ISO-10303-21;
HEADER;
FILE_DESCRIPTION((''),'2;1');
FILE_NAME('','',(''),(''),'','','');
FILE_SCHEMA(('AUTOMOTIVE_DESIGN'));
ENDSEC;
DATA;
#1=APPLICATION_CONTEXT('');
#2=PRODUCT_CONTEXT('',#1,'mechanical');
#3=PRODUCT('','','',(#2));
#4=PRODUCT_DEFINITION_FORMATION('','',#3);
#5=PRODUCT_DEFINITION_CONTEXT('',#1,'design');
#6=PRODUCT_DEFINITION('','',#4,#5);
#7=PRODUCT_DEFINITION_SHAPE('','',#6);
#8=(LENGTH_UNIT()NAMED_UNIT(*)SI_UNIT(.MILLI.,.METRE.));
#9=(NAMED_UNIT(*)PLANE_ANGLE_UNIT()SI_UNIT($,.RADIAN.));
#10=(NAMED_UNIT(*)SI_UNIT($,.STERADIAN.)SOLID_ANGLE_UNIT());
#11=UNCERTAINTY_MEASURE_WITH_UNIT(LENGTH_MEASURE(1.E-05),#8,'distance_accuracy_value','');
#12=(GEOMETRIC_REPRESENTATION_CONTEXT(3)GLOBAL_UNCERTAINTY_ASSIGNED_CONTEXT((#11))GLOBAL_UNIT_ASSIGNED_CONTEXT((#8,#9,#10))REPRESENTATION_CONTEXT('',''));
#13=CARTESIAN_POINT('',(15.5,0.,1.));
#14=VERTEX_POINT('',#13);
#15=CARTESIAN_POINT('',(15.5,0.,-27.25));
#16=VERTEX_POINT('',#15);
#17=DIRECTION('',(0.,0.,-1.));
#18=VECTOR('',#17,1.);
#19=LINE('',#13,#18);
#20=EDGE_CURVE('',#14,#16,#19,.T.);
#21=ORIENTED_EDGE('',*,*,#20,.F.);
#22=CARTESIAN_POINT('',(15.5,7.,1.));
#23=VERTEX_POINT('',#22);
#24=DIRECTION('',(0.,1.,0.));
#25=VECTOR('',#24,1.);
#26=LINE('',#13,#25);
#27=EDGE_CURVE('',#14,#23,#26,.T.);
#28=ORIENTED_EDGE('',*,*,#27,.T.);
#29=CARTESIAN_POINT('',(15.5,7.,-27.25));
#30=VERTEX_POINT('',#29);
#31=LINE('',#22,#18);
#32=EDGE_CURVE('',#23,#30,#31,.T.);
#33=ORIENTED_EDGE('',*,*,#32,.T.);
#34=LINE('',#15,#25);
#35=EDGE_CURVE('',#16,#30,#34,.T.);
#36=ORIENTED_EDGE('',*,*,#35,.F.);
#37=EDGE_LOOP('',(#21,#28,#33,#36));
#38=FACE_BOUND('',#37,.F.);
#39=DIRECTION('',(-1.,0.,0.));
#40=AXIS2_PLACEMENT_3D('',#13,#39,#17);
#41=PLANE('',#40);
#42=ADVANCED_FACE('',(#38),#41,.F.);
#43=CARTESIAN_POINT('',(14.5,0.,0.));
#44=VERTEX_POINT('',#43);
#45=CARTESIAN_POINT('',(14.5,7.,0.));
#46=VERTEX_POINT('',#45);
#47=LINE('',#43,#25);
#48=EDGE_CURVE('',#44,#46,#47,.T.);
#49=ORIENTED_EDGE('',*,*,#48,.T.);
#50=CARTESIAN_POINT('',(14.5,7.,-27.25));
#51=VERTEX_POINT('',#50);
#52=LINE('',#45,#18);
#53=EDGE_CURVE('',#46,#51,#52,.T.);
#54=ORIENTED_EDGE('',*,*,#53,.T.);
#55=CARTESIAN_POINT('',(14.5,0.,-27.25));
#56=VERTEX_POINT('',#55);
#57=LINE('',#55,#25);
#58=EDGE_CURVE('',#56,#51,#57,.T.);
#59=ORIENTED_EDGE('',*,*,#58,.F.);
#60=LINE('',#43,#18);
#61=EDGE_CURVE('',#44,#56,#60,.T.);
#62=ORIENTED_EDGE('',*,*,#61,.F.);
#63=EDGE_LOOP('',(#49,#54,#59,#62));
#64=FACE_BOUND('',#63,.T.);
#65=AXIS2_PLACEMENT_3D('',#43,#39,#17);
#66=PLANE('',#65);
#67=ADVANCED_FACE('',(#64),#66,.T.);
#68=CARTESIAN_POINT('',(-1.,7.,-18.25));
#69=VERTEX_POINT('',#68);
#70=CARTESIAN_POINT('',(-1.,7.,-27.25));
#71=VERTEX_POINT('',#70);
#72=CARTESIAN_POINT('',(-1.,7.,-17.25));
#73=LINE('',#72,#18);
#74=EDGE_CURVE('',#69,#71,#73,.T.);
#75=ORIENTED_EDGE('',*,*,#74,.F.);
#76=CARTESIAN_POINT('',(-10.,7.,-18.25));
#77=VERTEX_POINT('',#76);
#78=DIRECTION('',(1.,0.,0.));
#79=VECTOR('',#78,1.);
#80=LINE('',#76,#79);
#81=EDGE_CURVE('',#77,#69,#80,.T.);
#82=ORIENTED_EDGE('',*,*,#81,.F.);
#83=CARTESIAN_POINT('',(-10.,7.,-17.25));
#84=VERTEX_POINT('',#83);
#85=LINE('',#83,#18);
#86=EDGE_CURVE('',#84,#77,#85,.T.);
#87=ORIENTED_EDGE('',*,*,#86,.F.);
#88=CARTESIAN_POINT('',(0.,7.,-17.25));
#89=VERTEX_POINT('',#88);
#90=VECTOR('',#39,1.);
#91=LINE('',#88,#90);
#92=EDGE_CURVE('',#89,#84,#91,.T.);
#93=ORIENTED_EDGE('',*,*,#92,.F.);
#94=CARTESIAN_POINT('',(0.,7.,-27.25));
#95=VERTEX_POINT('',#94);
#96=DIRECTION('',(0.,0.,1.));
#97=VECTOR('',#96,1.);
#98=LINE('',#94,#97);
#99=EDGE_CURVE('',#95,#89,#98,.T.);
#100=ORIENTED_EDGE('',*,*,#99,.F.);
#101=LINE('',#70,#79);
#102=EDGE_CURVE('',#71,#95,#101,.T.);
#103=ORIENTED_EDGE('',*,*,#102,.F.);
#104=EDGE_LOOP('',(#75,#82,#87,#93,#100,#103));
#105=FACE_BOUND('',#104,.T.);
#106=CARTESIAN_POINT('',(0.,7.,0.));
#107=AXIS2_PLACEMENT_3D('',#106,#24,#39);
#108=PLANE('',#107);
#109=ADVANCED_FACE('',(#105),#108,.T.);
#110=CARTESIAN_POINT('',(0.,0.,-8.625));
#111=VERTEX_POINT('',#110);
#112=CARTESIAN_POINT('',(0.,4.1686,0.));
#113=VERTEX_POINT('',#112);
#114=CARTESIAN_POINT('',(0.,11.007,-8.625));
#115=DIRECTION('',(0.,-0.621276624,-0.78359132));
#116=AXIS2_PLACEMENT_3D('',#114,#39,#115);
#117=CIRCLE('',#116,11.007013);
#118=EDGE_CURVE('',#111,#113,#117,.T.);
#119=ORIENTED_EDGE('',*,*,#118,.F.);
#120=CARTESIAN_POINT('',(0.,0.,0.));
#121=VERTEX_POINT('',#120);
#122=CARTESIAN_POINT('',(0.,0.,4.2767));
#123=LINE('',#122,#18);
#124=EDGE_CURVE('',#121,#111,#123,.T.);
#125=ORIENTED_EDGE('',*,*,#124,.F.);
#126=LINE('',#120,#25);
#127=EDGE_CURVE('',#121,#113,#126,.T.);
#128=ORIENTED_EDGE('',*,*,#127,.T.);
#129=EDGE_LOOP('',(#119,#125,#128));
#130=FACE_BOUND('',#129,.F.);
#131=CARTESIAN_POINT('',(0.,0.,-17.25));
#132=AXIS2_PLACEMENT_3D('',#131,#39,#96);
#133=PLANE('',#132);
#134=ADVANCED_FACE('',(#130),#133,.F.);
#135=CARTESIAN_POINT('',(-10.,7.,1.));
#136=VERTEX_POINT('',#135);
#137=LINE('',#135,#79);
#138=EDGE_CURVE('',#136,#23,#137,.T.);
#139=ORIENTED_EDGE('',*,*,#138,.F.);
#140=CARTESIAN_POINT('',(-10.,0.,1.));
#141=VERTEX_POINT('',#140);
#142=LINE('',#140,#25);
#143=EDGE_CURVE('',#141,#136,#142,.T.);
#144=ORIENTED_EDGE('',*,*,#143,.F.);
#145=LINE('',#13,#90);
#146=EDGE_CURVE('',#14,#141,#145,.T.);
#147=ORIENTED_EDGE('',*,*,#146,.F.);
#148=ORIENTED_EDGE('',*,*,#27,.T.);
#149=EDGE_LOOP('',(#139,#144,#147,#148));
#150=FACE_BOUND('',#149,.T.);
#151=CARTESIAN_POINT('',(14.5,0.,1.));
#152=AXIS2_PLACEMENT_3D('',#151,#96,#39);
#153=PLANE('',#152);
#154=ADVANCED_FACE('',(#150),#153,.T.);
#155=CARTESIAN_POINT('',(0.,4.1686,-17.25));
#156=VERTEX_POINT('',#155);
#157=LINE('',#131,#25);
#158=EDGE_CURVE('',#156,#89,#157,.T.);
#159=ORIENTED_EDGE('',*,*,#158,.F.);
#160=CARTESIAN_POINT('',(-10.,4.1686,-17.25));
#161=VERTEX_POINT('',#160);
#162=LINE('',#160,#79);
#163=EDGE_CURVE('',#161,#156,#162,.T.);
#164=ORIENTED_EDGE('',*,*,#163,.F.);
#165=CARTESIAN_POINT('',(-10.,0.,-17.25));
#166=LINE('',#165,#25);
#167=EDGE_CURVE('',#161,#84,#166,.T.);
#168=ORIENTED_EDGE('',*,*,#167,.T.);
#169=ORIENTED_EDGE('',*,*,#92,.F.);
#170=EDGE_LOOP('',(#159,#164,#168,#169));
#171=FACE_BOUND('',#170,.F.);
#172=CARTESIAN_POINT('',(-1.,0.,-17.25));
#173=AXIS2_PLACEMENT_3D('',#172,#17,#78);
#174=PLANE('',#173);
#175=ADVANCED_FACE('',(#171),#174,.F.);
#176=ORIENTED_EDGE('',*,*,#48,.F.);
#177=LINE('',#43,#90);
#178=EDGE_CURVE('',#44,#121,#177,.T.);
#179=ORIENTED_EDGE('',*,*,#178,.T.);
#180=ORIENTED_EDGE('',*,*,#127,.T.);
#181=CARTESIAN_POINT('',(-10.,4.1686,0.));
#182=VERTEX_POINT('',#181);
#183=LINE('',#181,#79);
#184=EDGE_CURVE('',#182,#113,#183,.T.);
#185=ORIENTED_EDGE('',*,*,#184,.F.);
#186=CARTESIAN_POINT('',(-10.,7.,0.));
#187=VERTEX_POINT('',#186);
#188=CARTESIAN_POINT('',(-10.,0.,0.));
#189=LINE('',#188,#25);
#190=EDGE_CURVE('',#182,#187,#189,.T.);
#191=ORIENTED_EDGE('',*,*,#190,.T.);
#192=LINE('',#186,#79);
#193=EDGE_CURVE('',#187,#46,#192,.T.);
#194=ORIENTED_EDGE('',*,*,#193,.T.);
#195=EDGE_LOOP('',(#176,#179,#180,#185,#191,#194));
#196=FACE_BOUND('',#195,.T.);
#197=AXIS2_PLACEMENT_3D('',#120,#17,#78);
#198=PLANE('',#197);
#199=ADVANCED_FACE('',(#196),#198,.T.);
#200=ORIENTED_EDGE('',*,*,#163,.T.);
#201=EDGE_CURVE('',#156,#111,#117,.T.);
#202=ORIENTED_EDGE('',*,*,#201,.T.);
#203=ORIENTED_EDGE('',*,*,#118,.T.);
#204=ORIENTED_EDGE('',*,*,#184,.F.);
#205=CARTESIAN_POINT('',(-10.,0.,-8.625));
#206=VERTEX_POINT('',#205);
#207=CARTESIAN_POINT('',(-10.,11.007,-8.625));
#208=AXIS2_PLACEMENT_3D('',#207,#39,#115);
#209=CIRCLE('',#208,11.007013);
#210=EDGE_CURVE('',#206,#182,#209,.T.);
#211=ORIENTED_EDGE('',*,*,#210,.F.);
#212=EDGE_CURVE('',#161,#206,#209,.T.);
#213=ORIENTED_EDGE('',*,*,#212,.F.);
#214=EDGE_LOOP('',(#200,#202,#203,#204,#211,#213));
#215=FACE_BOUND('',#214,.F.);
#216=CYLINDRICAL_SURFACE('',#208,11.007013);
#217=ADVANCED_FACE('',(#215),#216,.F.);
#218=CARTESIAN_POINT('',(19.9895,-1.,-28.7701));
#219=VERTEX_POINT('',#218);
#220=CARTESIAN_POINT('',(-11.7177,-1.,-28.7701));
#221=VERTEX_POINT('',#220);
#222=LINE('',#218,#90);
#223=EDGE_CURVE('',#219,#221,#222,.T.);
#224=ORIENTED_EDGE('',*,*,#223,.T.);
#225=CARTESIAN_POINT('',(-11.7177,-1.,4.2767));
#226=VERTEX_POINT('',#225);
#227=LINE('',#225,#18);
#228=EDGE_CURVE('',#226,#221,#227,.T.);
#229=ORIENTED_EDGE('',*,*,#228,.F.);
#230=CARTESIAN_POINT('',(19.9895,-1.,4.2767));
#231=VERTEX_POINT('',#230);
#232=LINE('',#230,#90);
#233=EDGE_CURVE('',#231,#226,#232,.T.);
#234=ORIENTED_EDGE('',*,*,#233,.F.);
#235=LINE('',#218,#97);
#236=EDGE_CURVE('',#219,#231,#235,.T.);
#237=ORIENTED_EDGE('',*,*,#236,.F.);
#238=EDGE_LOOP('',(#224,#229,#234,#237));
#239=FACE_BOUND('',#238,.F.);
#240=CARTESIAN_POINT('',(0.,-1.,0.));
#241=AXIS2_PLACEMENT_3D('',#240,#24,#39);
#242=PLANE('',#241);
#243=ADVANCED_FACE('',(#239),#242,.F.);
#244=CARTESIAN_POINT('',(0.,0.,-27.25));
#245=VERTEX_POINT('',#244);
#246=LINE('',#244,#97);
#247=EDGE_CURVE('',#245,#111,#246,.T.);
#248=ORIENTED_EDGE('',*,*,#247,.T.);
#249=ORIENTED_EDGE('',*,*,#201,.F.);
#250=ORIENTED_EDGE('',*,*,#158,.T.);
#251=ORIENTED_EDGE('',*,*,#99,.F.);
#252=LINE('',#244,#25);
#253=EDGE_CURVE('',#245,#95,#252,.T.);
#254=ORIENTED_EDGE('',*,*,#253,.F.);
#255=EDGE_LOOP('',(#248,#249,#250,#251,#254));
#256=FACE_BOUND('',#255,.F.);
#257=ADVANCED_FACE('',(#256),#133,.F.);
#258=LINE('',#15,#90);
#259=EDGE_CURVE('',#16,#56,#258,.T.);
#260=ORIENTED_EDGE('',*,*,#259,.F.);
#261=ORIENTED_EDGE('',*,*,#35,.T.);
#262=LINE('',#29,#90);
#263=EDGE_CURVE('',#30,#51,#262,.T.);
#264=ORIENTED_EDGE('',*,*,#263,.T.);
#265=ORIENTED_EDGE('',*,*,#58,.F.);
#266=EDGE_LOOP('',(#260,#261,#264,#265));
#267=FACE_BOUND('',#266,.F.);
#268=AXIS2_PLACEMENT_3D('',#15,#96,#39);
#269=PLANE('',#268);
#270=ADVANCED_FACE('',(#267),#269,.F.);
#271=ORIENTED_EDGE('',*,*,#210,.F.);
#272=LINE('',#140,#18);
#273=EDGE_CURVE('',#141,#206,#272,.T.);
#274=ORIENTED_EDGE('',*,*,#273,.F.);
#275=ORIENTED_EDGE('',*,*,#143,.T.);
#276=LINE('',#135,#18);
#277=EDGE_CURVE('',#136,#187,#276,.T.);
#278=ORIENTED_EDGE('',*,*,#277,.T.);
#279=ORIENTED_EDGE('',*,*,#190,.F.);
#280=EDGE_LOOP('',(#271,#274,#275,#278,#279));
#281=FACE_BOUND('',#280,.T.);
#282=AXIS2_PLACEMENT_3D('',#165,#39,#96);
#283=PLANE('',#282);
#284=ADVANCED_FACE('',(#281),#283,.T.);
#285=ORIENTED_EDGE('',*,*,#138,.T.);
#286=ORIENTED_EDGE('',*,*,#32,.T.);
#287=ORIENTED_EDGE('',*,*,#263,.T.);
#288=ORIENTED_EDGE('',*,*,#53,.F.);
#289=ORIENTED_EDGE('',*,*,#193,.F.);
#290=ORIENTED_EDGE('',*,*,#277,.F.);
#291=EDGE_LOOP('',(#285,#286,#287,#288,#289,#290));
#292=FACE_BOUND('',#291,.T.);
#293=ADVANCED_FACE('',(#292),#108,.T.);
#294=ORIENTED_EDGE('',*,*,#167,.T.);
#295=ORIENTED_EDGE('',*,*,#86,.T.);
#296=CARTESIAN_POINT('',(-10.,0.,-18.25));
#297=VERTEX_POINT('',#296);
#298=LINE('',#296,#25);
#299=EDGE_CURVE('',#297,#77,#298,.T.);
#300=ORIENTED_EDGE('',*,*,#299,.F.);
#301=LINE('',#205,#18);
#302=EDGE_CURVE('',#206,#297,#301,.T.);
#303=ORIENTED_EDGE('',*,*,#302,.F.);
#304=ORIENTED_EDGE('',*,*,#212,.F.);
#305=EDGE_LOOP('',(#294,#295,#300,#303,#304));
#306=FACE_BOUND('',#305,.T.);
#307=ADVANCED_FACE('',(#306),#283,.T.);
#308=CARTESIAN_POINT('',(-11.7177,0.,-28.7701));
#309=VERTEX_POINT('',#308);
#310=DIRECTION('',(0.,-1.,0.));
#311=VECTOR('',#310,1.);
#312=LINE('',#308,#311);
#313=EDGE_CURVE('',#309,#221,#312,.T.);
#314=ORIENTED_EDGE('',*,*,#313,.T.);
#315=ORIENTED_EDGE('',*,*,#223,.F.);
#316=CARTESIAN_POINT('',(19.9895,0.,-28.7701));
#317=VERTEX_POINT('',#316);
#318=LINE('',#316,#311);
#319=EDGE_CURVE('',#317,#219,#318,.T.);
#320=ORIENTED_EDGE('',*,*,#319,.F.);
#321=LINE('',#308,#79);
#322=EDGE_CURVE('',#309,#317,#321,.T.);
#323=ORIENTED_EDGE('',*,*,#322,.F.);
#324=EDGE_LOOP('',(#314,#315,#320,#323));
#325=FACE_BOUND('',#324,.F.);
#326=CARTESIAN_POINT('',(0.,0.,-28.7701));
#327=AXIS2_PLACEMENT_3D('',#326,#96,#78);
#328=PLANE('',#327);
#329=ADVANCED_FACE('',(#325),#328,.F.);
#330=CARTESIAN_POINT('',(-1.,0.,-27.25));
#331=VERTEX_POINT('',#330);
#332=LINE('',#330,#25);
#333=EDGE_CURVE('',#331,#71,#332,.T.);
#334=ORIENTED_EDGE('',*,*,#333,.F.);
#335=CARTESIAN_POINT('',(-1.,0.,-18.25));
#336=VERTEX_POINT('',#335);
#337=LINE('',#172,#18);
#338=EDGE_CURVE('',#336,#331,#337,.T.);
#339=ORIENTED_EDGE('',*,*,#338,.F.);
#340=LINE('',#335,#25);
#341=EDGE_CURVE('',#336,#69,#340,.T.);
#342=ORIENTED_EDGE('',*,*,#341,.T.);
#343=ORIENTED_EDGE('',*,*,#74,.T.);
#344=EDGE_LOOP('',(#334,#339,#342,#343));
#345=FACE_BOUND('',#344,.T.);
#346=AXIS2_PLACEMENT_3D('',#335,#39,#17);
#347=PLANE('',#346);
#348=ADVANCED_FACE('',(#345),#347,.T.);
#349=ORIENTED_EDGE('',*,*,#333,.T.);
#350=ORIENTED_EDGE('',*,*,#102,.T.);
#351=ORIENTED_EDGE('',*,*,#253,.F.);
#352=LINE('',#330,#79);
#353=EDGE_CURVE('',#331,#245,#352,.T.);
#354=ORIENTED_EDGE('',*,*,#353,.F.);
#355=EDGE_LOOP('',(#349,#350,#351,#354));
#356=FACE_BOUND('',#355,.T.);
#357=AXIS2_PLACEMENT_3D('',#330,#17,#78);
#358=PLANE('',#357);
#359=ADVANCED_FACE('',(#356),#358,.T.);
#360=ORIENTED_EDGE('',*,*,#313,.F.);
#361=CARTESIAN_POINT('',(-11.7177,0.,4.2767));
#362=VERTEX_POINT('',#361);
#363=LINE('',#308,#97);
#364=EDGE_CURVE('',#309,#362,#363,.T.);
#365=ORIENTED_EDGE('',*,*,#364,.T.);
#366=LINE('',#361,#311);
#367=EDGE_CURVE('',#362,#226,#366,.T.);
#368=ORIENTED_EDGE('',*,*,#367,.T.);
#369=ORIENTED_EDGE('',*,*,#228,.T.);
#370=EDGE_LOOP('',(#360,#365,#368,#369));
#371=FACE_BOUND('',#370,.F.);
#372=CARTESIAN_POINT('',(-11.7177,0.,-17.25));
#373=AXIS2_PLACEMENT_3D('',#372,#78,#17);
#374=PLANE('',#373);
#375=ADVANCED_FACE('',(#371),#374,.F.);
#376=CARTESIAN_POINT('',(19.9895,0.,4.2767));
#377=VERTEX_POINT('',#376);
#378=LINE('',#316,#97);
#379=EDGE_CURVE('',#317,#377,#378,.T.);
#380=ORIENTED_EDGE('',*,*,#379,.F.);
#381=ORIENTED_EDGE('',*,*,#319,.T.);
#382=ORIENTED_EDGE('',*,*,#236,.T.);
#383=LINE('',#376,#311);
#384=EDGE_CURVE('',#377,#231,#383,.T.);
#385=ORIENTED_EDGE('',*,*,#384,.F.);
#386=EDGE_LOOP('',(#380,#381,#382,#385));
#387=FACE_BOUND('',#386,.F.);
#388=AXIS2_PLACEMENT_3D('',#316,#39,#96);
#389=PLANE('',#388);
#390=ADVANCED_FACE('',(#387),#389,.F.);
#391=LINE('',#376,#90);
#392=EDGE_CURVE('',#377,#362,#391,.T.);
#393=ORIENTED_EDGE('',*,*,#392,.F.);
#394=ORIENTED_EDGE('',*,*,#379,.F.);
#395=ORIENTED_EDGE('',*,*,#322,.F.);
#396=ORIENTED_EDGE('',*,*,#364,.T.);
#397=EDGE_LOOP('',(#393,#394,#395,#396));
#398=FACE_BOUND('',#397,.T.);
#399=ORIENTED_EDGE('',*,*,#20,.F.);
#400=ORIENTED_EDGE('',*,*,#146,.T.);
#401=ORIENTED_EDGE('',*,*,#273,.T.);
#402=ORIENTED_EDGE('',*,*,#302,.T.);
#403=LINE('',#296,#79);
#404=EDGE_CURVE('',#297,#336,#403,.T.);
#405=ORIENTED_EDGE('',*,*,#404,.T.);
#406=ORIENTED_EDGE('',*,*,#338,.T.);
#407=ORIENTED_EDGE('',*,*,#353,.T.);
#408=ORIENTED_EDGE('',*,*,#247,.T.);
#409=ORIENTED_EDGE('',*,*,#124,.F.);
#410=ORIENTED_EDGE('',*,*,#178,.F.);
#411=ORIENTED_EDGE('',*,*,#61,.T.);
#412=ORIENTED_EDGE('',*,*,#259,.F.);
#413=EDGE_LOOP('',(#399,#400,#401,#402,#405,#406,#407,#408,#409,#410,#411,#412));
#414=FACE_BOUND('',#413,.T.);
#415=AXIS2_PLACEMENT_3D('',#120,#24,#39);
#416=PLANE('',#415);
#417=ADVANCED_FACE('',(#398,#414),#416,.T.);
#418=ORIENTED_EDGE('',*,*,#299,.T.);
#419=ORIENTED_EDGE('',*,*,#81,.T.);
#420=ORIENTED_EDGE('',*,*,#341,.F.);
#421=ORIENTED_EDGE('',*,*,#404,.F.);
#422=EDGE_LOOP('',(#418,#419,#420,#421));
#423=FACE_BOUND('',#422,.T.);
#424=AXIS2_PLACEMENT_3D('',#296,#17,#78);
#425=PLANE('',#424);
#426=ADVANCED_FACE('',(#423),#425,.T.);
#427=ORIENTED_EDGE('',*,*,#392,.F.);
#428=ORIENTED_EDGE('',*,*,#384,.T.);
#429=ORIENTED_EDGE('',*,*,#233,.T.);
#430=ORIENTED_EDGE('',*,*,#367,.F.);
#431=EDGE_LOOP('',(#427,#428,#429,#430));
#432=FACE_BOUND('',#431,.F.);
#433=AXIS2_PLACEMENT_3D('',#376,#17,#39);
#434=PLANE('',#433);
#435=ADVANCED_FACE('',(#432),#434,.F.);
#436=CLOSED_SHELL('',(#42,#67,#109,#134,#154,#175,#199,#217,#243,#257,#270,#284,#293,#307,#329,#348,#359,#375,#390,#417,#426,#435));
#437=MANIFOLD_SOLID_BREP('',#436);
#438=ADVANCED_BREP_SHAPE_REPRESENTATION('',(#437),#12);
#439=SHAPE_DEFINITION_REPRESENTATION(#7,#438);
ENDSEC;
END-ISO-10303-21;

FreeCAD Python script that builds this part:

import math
import FreeCAD as App
import Part
import Sketcher

V = App.Vector

doc = App.newDocument("Part")
body = doc.addObject("PartDesign::Body", "Body")

sketch1 = body.newObject("Sketcher::SketchObject", "Sketch")
sketch1.AttachmentSupport = (doc.getObject("XZ_Plane"), [""])
sketch1.MapMode = "FlatFace"
sketch1.addGeometry([
    Part.LineSegment(V(-11.7177, -28.7701, 0), V(-11.7177, 4.2767, 0)),
    Part.LineSegment(V(-11.7177, 4.2767, 0), V(19.9895, 4.2767, 0)),
    Part.LineSegment(V(19.9895, 4.2767, 0), V(19.9895, -28.7701, 0)),
    Part.LineSegment(V(19.9895, -28.7701, 0), V(-11.7177, -28.7701, 0)),
], False)
sketch1.addConstraint([
    Sketcher.Constraint("Coincident", 0, 2, 1, 1),
    Sketcher.Constraint("Coincident", 1, 2, 2, 1),
    Sketcher.Constraint("Coincident", 2, 2, 3, 1),
    Sketcher.Constraint("Coincident", 3, 2, 0, 1),
    Sketcher.Constraint("Vertical", 0),
    Sketcher.Constraint("Horizontal", 1),
    Sketcher.Constraint("Vertical", 2),
    Sketcher.Constraint("Horizontal", 3),
    Sketcher.Constraint("DistanceY", 2, 2, -1, 1, 28.77),
    Sketcher.Constraint("DistanceX", 1, 1, 1, 2, 31.7072),
    Sketcher.Constraint("DistanceY", 0, 1, 0, 2, 33.0468),
    Sketcher.Constraint("DistanceX", 0, 2, -1, 1, 11.7177),
])
pad1 = body.newObject("PartDesign::Pad", "Pad")
pad1.Profile = sketch1
pad1.Length = 1

sketch2 = body.newObject("Sketcher::SketchObject", "Sketch001")
sketch2.AttachmentSupport = (doc.getObject("XZ_Plane"), [""])
sketch2.MapMode = "FlatFace"
sketch2.addGeometry([
    Part.LineSegment(V(14.5, 0, 0), V(-10, 0, 0)),
    Part.LineSegment(V(-10, 0, 0), V(-10, 1, 0)),
    Part.LineSegment(V(-10, 1, 0), V(15.5, 1, 0)),
    Part.LineSegment(V(15.5, 1, 0), V(15.5, -27.25, 0)),
    Part.LineSegment(V(15.5, -27.25, 0), V(14.5, -27.25, 0)),
    Part.LineSegment(V(14.5, -27.25, 0), V(14.5, 0, 0)),
    Part.LineSegment(V(0, -17.25, 0), V(0, -27.25, 0)),
    Part.LineSegment(V(0, -27.25, 0), V(-1, -27.25, 0)),
    Part.LineSegment(V(-1, -27.25, 0), V(-1, -18.25, 0)),
    Part.LineSegment(V(-1, -18.25, 0), V(-10, -18.25, 0)),
    Part.LineSegment(V(-10, -18.25, 0), V(-10, -17.25, 0)),
    Part.LineSegment(V(-10, -17.25, 0), V(0, -17.25, 0)),
], False)
sketch2.addConstraint([
    Sketcher.Constraint("Coincident", 0, 2, 1, 1),
    Sketcher.Constraint("Coincident", 1, 2, 2, 1),
    Sketcher.Constraint("Coincident", 2, 2, 3, 1),
    Sketcher.Constraint("Coincident", 3, 2, 4, 1),
    Sketcher.Constraint("Coincident", 4, 2, 5, 1),
    Sketcher.Constraint("Coincident", 5, 2, 0, 1),
    Sketcher.Constraint("Coincident", 6, 2, 7, 1),
    Sketcher.Constraint("Coincident", 7, 2, 8, 1),
    Sketcher.Constraint("Coincident", 8, 2, 9, 1),
    Sketcher.Constraint("Coincident", 9, 2, 10, 1),
    Sketcher.Constraint("Coincident", 10, 2, 11, 1),
    Sketcher.Constraint("Coincident", 11, 2, 6, 1),
    Sketcher.Constraint("Horizontal", 0),
    Sketcher.Constraint("Vertical", 1),
    Sketcher.Constraint("Horizontal", 2),
    Sketcher.Constraint("Vertical", 3),
    Sketcher.Constraint("Horizontal", 4),
    Sketcher.Constraint("Vertical", 5),
    Sketcher.Constraint("Vertical", 6),
    Sketcher.Constraint("Horizontal", 7),
    Sketcher.Constraint("Vertical", 8),
    Sketcher.Constraint("Horizontal", 9),
    Sketcher.Constraint("Vertical", 10),
    Sketcher.Constraint("Horizontal", 11),
    Sketcher.Constraint("PointOnObject", 0, 2, -1),
    Sketcher.Constraint("PointOnObject", 6, 2, -2),
    Sketcher.Constraint("Horizontal", 4, 2, 6, 2),
    Sketcher.Constraint("Vertical", 1, 2, 9, 2),
    Sketcher.Constraint("Equal", 4, 7),
    Sketcher.Constraint("Equal", 7, 1),
    Sketcher.Constraint("Equal", 11, 6),
    Sketcher.Constraint("Equal", 9, 8),
    Sketcher.Constraint("DistanceX", 4, 2, 4, 1, 1.0),
    Sketcher.Constraint("DistanceX", 11, 1, 11, 2, 10.0),
    Sketcher.Constraint("DistanceY", 3, 2, 3, 1, 28.25),
    Sketcher.Constraint("DistanceX", -1, 1, 2, 2, 15.5),
])
pad2 = body.newObject("PartDesign::Pad", "Pad001")
pad2.Profile = sketch2
pad2.Length = 7
pad2.Reversed = True

sketch3 = body.newObject("Sketcher::SketchObject", "Sketch002")
sketch3.AttachmentSupport = (doc.getObject("YZ_Plane"), [""])
sketch3.MapMode = "FlatFace"
sketch3.AttachmentOffset = App.Placement(V(0, 0, -10), App.Rotation())
sketch3.addGeometry([
    Part.ArcOfCircle(Part.Circle(V(11.007, -8.625, 0), V(0, 0, 1), 11.007013), math.radians(128.40942), math.radians(180)),
    Part.LineSegment(V(0, -8.625, 0), V(0, 0, 0)),
    Part.LineSegment(V(0, 0, 0), V(4.1686, 0, 0)),
    Part.LineSegment(V(4.1686, -17.25, 0), V(0, -17.25, 0)),
    Part.LineSegment(V(0, -17.25, 0), V(0, -8.625, 0)),
    Part.ArcOfCircle(Part.Circle(V(11.007, -8.625, 0), V(0, 0, 1), 11.007013), math.radians(180), math.radians(231.59058)),
], False)
sketch3.addConstraint([
    Sketcher.Constraint("Tangent", 0, 2, 1, 1),
    Sketcher.Constraint("Coincident", 1, 2, 2, 1),
    Sketcher.Constraint("Coincident", 2, 2, 0, 1),
    Sketcher.Constraint("Coincident", 3, 2, 4, 1),
    Sketcher.Constraint("Tangent", 4, 2, 5, 1),
    Sketcher.Constraint("Coincident", 5, 2, 3, 1),
    Sketcher.Constraint("Vertical", 1),
    Sketcher.Constraint("Horizontal", 2),
    Sketcher.Constraint("Horizontal", 3),
    Sketcher.Constraint("Vertical", 4),
    Sketcher.Constraint("Coincident", 1, 2, -1, 1),
    Sketcher.Constraint("Coincident", 5, 3, 0, 3),
    Sketcher.Constraint("Equal", 0, 5),
    Sketcher.Constraint("Vertical", 2, 2, 5, 2),
    Sketcher.Constraint("DistanceY", 1, 1, 1, 2, 8.625),
    Sketcher.Constraint("Radius", 0, 11.007),
])
pad3 = body.newObject("PartDesign::Pad", "Pad002")
pad3.Profile = sketch3
pad3.Length = 10

doc.recompute()
